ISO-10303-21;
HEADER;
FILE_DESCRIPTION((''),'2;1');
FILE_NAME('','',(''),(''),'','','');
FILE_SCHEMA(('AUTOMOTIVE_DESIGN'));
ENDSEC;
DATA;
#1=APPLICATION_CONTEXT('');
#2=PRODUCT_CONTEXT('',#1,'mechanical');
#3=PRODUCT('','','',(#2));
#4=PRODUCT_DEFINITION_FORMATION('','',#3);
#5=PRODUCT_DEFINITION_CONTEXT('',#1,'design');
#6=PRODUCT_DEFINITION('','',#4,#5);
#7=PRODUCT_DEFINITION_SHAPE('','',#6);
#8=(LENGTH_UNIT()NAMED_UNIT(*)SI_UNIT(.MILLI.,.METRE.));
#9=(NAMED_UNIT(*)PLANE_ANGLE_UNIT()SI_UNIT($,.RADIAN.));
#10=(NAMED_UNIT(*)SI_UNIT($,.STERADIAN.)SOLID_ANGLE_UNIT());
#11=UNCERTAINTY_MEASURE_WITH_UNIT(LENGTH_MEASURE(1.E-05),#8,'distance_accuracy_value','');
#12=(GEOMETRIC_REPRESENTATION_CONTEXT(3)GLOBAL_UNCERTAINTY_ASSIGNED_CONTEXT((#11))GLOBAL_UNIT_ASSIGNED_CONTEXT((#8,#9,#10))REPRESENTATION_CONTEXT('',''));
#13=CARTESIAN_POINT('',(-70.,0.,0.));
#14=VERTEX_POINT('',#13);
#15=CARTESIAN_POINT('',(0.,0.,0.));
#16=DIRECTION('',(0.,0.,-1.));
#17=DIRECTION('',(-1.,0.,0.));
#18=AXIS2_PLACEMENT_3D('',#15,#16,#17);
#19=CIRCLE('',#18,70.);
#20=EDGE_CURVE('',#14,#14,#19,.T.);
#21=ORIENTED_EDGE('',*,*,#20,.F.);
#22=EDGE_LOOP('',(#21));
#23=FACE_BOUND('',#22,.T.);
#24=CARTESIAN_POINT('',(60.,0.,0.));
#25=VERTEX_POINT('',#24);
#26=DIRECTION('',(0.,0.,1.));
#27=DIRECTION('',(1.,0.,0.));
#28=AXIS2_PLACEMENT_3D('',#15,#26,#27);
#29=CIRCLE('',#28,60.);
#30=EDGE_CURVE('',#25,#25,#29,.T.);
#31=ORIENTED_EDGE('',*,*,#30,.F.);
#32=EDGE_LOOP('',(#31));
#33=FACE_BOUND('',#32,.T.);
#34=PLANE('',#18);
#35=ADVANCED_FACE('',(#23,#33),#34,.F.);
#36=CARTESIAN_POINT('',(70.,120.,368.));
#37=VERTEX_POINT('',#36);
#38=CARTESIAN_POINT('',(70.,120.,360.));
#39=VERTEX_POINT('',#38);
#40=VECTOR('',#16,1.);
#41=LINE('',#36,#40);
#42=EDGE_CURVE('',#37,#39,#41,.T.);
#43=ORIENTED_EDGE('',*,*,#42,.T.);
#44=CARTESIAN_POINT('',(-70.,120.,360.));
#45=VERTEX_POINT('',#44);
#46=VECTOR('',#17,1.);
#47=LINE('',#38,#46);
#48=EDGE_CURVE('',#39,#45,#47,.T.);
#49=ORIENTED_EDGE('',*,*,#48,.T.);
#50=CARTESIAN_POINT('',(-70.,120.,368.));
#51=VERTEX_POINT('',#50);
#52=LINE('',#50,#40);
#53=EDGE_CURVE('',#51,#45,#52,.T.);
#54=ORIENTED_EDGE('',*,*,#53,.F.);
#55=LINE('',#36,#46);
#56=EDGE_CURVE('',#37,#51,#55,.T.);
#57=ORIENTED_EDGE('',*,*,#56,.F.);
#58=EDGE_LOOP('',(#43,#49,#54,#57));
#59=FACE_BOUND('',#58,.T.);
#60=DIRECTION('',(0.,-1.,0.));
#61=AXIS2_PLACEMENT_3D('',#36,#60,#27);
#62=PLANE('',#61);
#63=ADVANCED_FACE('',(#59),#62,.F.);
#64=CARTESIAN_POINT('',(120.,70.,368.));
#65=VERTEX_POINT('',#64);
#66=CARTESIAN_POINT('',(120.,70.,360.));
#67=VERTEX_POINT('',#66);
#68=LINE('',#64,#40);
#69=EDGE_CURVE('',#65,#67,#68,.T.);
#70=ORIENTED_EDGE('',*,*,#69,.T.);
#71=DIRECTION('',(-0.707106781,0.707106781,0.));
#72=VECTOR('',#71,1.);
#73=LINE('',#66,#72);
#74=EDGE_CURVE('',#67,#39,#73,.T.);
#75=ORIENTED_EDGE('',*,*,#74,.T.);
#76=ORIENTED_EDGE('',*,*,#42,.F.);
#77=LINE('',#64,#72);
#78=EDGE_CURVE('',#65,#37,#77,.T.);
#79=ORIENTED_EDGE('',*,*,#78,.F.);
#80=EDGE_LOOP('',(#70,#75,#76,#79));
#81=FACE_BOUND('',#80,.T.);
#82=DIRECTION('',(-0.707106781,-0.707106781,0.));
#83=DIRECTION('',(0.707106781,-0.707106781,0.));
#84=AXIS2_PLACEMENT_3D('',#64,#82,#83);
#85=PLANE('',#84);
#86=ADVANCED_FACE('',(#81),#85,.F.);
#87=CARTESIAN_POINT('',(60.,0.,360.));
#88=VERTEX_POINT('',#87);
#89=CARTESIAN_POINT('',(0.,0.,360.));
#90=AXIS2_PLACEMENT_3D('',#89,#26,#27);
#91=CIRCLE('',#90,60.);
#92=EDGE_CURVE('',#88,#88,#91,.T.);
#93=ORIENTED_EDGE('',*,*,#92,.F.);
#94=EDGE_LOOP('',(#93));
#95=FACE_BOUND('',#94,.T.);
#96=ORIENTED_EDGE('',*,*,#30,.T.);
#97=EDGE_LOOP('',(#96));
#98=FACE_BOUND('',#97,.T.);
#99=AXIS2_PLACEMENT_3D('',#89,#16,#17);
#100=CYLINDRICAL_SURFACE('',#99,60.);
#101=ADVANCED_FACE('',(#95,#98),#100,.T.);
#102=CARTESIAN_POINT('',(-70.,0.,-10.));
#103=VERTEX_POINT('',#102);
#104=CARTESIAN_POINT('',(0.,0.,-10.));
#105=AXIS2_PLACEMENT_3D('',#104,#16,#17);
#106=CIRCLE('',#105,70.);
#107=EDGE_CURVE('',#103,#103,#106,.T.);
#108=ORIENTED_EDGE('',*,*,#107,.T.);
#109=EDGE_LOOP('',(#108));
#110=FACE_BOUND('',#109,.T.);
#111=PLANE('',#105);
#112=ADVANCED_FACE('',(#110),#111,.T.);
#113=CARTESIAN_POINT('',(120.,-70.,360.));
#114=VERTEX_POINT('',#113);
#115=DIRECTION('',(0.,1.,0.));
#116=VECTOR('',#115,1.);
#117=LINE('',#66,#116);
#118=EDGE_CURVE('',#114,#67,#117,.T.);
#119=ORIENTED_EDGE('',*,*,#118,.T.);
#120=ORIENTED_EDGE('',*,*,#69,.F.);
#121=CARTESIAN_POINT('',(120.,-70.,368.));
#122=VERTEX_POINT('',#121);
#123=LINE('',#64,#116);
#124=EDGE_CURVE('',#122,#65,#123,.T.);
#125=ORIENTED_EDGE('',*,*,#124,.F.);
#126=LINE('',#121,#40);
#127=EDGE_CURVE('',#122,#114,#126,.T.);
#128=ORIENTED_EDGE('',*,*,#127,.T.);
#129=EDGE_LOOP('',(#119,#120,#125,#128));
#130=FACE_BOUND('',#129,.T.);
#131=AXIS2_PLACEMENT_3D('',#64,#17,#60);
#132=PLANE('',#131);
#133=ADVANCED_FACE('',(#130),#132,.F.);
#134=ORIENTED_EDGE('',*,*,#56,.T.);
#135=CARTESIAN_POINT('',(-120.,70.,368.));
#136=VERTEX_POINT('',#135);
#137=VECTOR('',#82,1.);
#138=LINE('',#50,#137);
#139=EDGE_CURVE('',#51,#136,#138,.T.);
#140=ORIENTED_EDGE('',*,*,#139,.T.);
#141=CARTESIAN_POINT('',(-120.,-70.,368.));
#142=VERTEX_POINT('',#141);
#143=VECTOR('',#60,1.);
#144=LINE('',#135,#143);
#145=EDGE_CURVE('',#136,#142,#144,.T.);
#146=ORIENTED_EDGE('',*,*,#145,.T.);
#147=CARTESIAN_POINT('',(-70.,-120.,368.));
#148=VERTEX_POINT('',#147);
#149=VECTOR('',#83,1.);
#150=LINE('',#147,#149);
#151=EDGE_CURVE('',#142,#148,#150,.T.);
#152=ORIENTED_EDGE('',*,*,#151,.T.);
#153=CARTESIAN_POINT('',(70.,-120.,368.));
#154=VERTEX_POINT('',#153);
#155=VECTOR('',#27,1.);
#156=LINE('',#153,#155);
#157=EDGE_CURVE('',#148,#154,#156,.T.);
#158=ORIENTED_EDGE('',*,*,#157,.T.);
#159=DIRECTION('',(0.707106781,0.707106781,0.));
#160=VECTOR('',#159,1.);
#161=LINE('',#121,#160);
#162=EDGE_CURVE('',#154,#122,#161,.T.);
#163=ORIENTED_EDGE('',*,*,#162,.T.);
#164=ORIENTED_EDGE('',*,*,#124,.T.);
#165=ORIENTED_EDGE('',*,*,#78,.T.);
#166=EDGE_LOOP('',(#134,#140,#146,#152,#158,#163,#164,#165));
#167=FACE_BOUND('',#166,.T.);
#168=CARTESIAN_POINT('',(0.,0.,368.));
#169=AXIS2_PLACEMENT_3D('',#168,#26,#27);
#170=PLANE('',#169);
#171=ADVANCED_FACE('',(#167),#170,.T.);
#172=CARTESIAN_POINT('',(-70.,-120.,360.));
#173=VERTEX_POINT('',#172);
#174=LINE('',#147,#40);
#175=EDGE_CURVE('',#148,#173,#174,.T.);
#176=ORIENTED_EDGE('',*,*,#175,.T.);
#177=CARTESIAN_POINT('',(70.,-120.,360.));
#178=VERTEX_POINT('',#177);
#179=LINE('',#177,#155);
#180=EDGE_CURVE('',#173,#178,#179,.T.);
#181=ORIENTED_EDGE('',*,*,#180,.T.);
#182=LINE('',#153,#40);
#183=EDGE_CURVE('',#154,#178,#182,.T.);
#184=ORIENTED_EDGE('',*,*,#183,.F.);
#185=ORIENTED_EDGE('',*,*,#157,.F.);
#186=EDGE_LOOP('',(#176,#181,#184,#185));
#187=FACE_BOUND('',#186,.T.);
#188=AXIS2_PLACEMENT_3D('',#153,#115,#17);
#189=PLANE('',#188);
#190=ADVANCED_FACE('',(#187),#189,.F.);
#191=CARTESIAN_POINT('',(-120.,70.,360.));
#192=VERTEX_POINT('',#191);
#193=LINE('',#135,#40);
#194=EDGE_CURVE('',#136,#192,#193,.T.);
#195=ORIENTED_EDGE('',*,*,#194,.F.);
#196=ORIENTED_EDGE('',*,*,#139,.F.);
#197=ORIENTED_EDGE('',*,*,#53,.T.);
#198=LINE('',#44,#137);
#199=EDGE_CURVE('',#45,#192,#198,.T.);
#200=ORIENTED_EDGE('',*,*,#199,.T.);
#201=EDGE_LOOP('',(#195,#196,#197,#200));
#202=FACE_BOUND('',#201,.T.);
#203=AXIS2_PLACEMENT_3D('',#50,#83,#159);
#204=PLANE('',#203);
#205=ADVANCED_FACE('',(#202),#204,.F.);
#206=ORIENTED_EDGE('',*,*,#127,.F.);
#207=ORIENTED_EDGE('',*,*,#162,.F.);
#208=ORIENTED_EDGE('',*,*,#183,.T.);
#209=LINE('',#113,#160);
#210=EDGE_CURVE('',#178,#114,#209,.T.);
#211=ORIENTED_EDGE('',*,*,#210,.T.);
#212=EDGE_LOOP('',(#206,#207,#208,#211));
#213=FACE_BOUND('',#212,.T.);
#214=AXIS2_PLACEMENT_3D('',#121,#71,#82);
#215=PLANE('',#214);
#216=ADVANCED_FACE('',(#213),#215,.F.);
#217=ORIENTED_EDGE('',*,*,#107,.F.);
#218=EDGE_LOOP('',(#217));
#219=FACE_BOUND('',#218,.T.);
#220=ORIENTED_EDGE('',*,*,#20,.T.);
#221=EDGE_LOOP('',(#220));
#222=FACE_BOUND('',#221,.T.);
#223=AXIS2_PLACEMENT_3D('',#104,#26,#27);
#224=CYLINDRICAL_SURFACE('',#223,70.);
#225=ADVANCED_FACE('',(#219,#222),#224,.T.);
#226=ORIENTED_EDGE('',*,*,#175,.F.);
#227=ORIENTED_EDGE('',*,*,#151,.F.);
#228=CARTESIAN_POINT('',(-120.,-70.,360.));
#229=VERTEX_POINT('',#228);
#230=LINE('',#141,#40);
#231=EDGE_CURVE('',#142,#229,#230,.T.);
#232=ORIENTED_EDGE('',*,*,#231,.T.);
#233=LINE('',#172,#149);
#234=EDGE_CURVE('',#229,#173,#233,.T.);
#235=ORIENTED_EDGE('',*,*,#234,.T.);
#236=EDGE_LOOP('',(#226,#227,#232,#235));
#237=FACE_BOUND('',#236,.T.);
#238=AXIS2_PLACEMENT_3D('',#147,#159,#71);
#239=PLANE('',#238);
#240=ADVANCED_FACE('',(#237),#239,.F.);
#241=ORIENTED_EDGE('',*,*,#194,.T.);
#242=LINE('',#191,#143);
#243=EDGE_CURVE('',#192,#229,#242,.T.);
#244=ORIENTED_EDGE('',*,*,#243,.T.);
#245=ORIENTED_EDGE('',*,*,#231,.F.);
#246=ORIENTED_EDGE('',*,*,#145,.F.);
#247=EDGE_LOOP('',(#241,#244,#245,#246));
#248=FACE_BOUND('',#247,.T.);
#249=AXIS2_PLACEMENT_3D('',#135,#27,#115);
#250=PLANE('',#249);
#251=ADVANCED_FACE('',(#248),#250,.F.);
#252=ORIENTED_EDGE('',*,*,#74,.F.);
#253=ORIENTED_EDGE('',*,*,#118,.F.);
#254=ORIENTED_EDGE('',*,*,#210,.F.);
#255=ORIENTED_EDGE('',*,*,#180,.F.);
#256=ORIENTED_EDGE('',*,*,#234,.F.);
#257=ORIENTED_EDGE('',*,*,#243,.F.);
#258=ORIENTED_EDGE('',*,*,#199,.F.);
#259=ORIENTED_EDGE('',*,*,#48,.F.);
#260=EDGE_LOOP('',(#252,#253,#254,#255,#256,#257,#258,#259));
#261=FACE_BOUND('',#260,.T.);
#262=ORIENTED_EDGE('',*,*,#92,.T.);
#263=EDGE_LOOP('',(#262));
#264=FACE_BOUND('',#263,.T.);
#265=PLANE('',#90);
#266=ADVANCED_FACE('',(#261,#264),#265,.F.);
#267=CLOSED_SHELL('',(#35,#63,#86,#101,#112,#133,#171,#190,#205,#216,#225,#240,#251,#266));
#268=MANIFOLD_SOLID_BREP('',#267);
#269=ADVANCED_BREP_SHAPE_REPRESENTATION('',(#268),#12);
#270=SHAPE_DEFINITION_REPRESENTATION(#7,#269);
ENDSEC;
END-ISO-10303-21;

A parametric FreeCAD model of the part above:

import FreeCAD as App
import Part
import Sketcher
Q = App.Units.Quantity

doc = App.newDocument("Part")
params = doc.addObject("Spreadsheet::Sheet", "Params")
for row, (alias, value) in enumerate([
    ("sketch1_diameter", "120 mm"),
    ("pad1_length", "360 mm"),
    ("sketch2_diameter", "140 mm"),
    ("pad2_length", "10 mm"),
    ("sketch3_width", "140 mm"),
    ("pad3_length", "8 mm"),
], start=1):
    params.set(f"A{row}", alias)
    params.set(f"B{row}", "=" + value)
    params.setAlias(f"B{row}", alias)

body = doc.addObject("PartDesign::Body", "Body")

# Sketch on XY plane
sketch1 = body.newObject("Sketcher::SketchObject", "Sketch")
sketch1.AttachmentSupport = (doc.getObject("XY_Plane"), [""])
sketch1.MapMode = "FlatFace"
sketch1.addGeometry(Part.Circle(App.Vector(0, 0, 0), App.Vector(0, 0, 1), 60), False)
sketch1.addConstraint(Sketcher.Constraint("Coincident", 0, 3, -1, 1))
sketch1.addConstraint(Sketcher.Constraint("Diameter", 0, Q("120 mm")))
sketch1.setExpression("Constraints[1]", "Params.sketch1_diameter")
pad1 = body.newObject("PartDesign::Pad", "Pad")
pad1.Profile = sketch1
pad1.setExpression("Length", "Params.pad1_length")

# Sketch on XY plane
sketch2 = body.newObject("Sketcher::SketchObject", "Sketch001")
sketch2.AttachmentSupport = (doc.getObject("XY_Plane"), [""])
sketch2.MapMode = "FlatFace"
sketch2.addGeometry(Part.Circle(App.Vector(0, 0, 0), App.Vector(0, 0, 1), 70), False)
sketch2.addConstraint(Sketcher.Constraint("Coincident", 0, 3, -1, 1))
sketch2.addConstraint(Sketcher.Constraint("Diameter", 0, Q("140 mm")))
sketch2.setExpression("Constraints[1]", "Params.sketch2_diameter")
pad2 = body.newObject("PartDesign::Pad", "Pad001")
pad2.Profile = sketch2
pad2.setExpression("Length", "Params.pad2_length")
pad2.Reversed = True

# Sketch on XY plane
sketch3 = body.newObject("Sketcher::SketchObject", "Sketch002")
sketch3.AttachmentSupport = (doc.getObject("XY_Plane"), [""])
sketch3.MapMode = "FlatFace"
sketch3.AttachmentOffset = App.Placement(App.Vector(0, 0, 360), App.Rotation())
sketch3.addGeometry(Part.LineSegment(App.Vector(-70, 120, 0), App.Vector(-120, 70, 0)), False)
sketch3.addGeometry(Part.LineSegment(App.Vector(-120, 70, 0), App.Vector(-120, -70, 0)), False)
sketch3.addGeometry(Part.LineSegment(App.Vector(-120, -70, 0), App.Vector(-70, -120, 0)), False)
sketch3.addGeometry(Part.LineSegment(App.Vector(-70, -120, 0), App.Vector(70, -120, 0)), False)
sketch3.addGeometry(Part.LineSegment(App.Vector(70, -120, 0), App.Vector(120, -70, 0)), False)
sketch3.addGeometry(Part.LineSegment(App.Vector(120, -70, 0), App.Vector(120, 70, 0)), False)
sketch3.addGeometry(Part.LineSegment(App.Vector(120, 70, 0), App.Vector(70, 120, 0)), False)
sketch3.addGeometry(Part.LineSegment(App.Vector(70, 120, 0), App.Vector(-70, 120, 0)), False)
sketch3.addConstraint(Sketcher.Constraint("Coincident", 0, 2, 1, 1))
sketch3.addConstraint(Sketcher.Constraint("Coincident", 1, 2, 2, 1))
sketch3.addConstraint(Sketcher.Constraint("Coincident", 2, 2, 3, 1))
sketch3.addConstraint(Sketcher.Constraint("Coincident", 3, 2, 4, 1))
sketch3.addConstraint(Sketcher.Constraint("Coincident", 4, 2, 5, 1))
sketch3.addConstraint(Sketcher.Constraint("Coincident", 5, 2, 6, 1))
sketch3.addConstraint(Sketcher.Constraint("Coincident", 6, 2, 7, 1))
sketch3.addConstraint(Sketcher.Constraint("Coincident", 7, 2, 0, 1))
sketch3.addConstraint(Sketcher.Constraint("Vertical", 1))
sketch3.addConstraint(Sketcher.Constraint("Horizontal", 3))
sketch3.addConstraint(Sketcher.Constraint("Vertical", 5))
sketch3.addConstraint(Sketcher.Constraint("Horizontal", 7))
sketch3.addConstraint(Sketcher.Constraint("Symmetric", 0, 2, 4, 2, -1, 1))
sketch3.addConstraint(Sketcher.Constraint("Symmetric", 2, 2, 6, 2, -1, 1))
sketch3.addConstraint(Sketcher.Constraint("Perpendicular", 0, 2))
sketch3.addConstraint(Sketcher.Constraint("Perpendicular", 2, 4))
sketch3.addConstraint(Sketcher.Constraint("Perpendicular", 4, 6))
sketch3.addConstraint(Sketcher.Constraint("Horizontal", 1, 2, 4, 2))
sketch3.addConstraint(Sketcher.Constraint("Vertical", 3, 2, 6, 2))
sketch3.addConstraint(Sketcher.Constraint("Equal", 7, 1))
sketch3.addConstraint(Sketcher.Constraint("DistanceX", 3, 1, 3, 2, Q("140 mm")))
sketch3.addConstraint(Sketcher.Constraint("DistanceX", 0, 2, -1, 1, Q("120 mm")))
sketch3.setExpression("Constraints[20]", "Params.sketch3_width")
pad3 = body.newObject("PartDesign::Pad", "Pad002")
pad3.Profile = sketch3
pad3.setExpression("Length", "Params.pad3_length")

doc.recompute()
